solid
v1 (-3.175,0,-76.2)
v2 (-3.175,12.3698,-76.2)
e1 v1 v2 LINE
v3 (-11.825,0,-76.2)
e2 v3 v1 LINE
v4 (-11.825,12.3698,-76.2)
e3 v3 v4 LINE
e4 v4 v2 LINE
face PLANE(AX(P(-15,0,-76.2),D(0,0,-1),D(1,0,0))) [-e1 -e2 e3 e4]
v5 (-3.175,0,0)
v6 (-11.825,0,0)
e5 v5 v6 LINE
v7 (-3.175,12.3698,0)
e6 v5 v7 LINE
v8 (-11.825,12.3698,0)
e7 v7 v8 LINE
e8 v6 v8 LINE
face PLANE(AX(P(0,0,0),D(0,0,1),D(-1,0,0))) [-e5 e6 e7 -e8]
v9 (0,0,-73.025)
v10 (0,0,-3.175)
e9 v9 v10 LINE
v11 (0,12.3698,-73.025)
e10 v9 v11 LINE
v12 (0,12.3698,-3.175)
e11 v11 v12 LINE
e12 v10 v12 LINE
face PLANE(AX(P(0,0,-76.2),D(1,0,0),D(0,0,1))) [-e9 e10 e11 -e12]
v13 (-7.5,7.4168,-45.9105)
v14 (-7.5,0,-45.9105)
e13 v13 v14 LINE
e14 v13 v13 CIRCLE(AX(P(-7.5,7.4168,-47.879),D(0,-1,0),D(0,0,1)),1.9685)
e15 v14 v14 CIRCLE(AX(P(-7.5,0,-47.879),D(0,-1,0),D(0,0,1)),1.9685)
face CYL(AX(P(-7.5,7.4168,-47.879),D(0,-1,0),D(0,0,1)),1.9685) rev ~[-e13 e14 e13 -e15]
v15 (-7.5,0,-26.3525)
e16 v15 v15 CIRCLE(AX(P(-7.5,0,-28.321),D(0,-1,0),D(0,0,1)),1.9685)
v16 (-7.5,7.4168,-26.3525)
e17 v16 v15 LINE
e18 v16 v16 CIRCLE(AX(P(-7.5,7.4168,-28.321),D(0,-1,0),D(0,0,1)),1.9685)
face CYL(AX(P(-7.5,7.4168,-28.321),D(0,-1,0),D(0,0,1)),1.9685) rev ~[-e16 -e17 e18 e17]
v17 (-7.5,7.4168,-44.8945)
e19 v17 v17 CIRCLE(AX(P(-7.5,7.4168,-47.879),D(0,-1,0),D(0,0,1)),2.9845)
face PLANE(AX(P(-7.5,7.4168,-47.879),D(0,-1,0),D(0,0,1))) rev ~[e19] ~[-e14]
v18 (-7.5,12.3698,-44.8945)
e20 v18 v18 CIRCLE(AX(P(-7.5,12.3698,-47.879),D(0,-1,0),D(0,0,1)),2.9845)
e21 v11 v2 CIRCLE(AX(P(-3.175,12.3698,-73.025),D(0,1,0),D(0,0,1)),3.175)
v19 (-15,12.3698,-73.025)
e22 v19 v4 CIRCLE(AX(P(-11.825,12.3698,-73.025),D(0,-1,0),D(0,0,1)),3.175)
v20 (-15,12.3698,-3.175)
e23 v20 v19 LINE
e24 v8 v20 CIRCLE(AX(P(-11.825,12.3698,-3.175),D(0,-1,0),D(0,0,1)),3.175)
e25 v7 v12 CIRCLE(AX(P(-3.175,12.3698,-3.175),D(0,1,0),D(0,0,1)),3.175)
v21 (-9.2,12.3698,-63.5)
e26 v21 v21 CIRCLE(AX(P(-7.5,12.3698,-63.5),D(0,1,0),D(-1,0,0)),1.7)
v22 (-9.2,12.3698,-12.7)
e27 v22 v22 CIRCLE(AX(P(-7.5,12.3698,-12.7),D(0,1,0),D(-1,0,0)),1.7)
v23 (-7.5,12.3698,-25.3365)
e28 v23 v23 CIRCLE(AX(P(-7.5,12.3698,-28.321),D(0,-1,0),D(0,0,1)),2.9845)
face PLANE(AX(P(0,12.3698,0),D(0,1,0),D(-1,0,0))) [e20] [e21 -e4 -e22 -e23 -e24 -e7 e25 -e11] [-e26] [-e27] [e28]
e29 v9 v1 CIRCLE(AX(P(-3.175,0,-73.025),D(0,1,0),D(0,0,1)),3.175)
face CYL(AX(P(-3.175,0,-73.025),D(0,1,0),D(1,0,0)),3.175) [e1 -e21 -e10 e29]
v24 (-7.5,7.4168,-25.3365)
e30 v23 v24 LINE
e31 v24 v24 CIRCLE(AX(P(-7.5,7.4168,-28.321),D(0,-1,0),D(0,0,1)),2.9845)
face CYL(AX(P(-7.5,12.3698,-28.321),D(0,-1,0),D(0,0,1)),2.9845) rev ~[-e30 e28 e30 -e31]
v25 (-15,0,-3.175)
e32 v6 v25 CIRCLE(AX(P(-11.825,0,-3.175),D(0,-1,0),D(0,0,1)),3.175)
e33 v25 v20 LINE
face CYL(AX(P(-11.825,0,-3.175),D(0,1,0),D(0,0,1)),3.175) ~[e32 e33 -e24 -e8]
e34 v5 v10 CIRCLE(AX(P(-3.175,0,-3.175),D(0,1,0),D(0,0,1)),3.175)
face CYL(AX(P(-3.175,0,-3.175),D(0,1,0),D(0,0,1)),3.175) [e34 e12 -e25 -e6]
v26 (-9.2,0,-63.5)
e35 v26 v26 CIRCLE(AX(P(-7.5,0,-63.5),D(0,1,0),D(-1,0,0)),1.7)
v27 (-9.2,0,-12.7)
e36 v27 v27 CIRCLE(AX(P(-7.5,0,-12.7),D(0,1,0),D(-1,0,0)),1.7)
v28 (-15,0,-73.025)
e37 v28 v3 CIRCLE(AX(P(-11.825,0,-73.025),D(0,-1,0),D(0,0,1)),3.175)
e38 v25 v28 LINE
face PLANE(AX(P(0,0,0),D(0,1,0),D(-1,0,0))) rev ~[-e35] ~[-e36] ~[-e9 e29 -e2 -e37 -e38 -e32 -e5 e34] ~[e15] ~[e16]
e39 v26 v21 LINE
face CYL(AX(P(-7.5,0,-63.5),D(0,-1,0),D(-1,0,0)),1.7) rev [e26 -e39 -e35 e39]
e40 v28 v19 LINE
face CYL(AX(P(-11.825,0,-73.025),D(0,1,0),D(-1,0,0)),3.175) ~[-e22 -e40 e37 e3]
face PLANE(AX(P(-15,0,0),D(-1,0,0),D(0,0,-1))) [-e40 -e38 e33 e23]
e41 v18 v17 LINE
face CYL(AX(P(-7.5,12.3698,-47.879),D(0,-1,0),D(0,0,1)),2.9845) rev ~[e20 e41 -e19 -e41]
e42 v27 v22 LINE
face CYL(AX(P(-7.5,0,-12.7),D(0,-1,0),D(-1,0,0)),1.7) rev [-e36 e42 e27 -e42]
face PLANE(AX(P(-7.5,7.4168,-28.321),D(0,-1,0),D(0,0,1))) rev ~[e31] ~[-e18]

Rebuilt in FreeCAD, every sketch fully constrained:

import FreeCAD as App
import Part
import Sketcher
from FreeCAD import Vector
Q = App.Units.Quantity


def edges_at(feature, points):
    """Names of the edges that pass closest to the given points."""
    edges = feature.Shape.Edges
    near = lambda p: min(range(len(edges)), key=lambda i: edges[i].distToShape(Part.Vertex(*p))[0])
    return sorted({f"Edge{near(p) + 1}" for p in points})

doc = App.newDocument("Part")
body = doc.addObject("PartDesign::Body", "Body")

sketch1 = doc.addObject("Sketcher::SketchObject", "Sketch")
body.addObject(sketch1)
sketch1.AttachmentSupport = (doc.XZ_Plane, [""])
sketch1.MapMode = "FlatFace"
sketch1.addGeometry(Part.LineSegment(Vector(-15, 0, 0), Vector(0, 0, 0)), False)
sketch1.addGeometry(Part.LineSegment(Vector(0, 0, 0), Vector(0, -76.2, 0)), False)
sketch1.addGeometry(Part.LineSegment(Vector(0, -76.2, 0), Vector(-15, -76.2, 0)), False)
sketch1.addGeometry(Part.LineSegment(Vector(-15, -76.2, 0), Vector(-15, 0, 0)), False)
sketch1.addGeometry(Part.Circle(Vector(-7.5, -63.5, 0), Vector(0, 0, 1), 1.7), False)
sketch1.addGeometry(Part.Circle(Vector(-7.5, -12.7, 0), Vector(0, 0, 1), 1.7), False)
sketch1.addConstraint(Sketcher.Constraint("Coincident", 0, 2, 1, 1))
sketch1.addConstraint(Sketcher.Constraint("Coincident", 1, 2, 2, 1))
sketch1.addConstraint(Sketcher.Constraint("Coincident", 2, 2, 3, 1))
sketch1.addConstraint(Sketcher.Constraint("Coincident", 3, 2, 0, 1))
sketch1.addConstraint(Sketcher.Constraint("Horizontal", 0))
sketch1.addConstraint(Sketcher.Constraint("Vertical", 1))
sketch1.addConstraint(Sketcher.Constraint("Horizontal", 2))
sketch1.addConstraint(Sketcher.Constraint("Vertical", 3))
sketch1.addConstraint(Sketcher.Constraint("Coincident", 0, 2, -1, 1))
sketch1.addConstraint(Sketcher.Constraint("Equal", 4, 5))
sketch1.addConstraint(Sketcher.Constraint("Vertical", 4, 3, 5, 3))
sketch1.addConstraint(Sketcher.Constraint("DistanceY", 1, 2, 1, 1, Q("3 in")))
sketch1.addConstraint(Sketcher.Constraint("DistanceY", 5, 3, -1, 1, Q("0.5 in")))
sketch1.addConstraint(Sketcher.Constraint("DistanceY", 1, 2, 4, 3, Q("0.5 in")))
sketch1.addConstraint(Sketcher.Constraint("Diameter", 4, Q("3.4 mm")))
sketch1.addConstraint(Sketcher.Constraint("DistanceX", 0, 1, 0, 2, Q("15 mm")))
sketch1.addConstraint(Sketcher.Constraint("DistanceX", 4, 3, -1, 1, Q("7.5 mm")))
pad1 = doc.addObject("PartDesign::Pad", "Pad")
body.addObject(pad1)
pad1.Profile = sketch1
pad1.Length = Q("0.487 in")
pad1.Reversed = True

sketch2 = doc.addObject("Sketcher::SketchObject", "Sketch001")
body.addObject(sketch2)
sketch2.AttachmentSupport = (doc.XZ_Plane, [""])
sketch2.MapMode = "FlatFace"
sketch2.AttachmentOffset = App.Placement(Vector(0, 0, -0.487 * 25.4), App.Rotation())
sketch2.addGeometry(Part.Circle(Vector(-7.5, -28.3, 0), Vector(0, 0, 1), 2), False)
sketch2.addGeometry(Part.Circle(Vector(-7.5, -47.9, 0), Vector(0, 0, 1), 2), False)
sketch2.addConstraint(Sketcher.Constraint("Equal", 0, 1))
sketch2.addConstraint(Sketcher.Constraint("Vertical", 0, 3, 1, 3))
sketch2.addConstraint(Sketcher.Constraint("Diameter", 0, Q("0.155 in")))
sketch2.addConstraint(Sketcher.Constraint("DistanceY", 1, 3, 0, 3, Q("0.77 in")))
sketch2.addConstraint(Sketcher.Constraint("DistanceY", 0, 3, -1, 1, Q("1.115 in")))
sketch2.addConstraint(Sketcher.Constraint("DistanceX", 0, 3, -1, 1, Q("7.5 mm")))
doc.recompute()
hole = doc.addObject("PartDesign::Hole", "Hole")
body.addObject(hole)
hole.Profile = sketch2
hole.ThreadType = "None"
hole.Diameter = Q("0.155 in")
hole.DepthType = "Dimension"
hole.Depth = Q("0.8 in")
hole.DrillPoint = "Flat"
hole.HoleCutType = "Counterbore"
hole.HoleCutDiameter = Q("0.235 in")
hole.HoleCutDepth = Q("0.195 in")
hole.Reversed = True
doc.recompute()

fillet = doc.addObject("PartDesign::Fillet", "Fillet")
body.addObject(fillet)
fillet.Base = (hole, edges_at(hole, [
    (-15, 6.185, -76.2),
    (0, 6.185, -76.2),
    (0, 6.185, 0),
    (-15, 6.185, 0),
]))
fillet.Radius = Q("0.125 in")

doc.recompute()
